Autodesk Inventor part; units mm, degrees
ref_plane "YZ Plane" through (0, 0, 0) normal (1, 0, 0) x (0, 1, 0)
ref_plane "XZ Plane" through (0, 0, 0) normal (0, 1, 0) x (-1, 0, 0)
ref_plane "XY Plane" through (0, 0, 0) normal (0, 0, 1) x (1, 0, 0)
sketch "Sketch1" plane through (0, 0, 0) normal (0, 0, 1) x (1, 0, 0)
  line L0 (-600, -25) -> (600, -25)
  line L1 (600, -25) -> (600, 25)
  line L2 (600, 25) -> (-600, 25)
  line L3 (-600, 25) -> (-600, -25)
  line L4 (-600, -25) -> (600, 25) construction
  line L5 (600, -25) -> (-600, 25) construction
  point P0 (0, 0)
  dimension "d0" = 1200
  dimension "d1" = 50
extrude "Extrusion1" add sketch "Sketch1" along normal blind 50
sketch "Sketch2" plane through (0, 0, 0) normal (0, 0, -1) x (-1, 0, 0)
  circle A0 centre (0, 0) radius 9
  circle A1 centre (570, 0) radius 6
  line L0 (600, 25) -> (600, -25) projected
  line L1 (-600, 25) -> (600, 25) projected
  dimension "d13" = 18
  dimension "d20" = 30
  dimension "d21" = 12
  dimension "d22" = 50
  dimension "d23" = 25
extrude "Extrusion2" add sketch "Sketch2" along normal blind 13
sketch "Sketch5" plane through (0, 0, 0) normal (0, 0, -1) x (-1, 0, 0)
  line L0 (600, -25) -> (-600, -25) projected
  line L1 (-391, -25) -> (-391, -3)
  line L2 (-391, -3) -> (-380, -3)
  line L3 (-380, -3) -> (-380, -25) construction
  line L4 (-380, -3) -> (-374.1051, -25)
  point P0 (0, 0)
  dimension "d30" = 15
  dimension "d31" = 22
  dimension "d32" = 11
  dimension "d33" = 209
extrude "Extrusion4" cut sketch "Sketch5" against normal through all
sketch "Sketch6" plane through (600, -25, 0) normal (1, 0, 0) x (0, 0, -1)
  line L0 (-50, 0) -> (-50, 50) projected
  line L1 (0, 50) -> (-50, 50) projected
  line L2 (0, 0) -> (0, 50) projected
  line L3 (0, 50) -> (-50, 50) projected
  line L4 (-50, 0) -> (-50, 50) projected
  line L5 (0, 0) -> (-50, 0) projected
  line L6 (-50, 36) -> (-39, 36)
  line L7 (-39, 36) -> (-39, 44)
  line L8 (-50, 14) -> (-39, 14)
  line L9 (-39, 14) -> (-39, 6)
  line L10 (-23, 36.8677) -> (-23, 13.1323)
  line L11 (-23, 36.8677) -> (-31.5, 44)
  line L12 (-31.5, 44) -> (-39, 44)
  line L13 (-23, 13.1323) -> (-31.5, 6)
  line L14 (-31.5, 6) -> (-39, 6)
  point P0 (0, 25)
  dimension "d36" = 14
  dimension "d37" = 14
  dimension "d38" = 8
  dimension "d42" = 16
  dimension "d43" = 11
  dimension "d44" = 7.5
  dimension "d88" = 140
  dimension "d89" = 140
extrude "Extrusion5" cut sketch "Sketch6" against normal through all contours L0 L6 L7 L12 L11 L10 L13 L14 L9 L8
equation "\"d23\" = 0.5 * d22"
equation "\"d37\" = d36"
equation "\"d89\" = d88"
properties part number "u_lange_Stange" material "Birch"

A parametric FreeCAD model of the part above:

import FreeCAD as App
import Part
import Sketcher

V = App.Vector
Q = App.Units.Quantity

doc = App.newDocument("Part")
params = doc.addObject("Spreadsheet::Sheet", "Params")
for row, (alias, value) in enumerate([
    ("sketch1_width", "1200 mm"),
    ("sketch1_height", "50 mm"),
    ("pad1_length", "50 mm"),
    ("sketch2_diameter", "18 mm"),
    ("sketch2_diameter2", "12 mm"),
    ("pad2_length", "13 mm"),
    ("sketch3_width", "11 mm"),
    ("sketch3_height", "22 mm"),
    ("sketch4_width", "8 mm"),
    ("sketch4_height", "11 mm"),
    ("sketch4_height2", "7.5 mm"),
], start=1):
    params.set(f"A{row}", alias)
    params.set(f"B{row}", "=" + value)
    params.setAlias(f"B{row}", alias)

body = doc.addObject("PartDesign::Body", "Body")

# Sketch on XY plane
sketch1 = body.newObject("Sketcher::SketchObject", "Sketch")
sketch1.AttachmentSupport = (doc.getObject("XY_Plane"), [""])
sketch1.MapMode = "FlatFace"
sketch1.addGeometry([
    Part.LineSegment(V(-600, 25, 0), V(-600, -25, 0)),
    Part.LineSegment(V(-600, -25, 0), V(600, -25, 0)),
    Part.LineSegment(V(600, -25, 0), V(600, 25, 0)),
    Part.LineSegment(V(600, 25, 0), V(-600, 25, 0)),
], False)
sketch1.addConstraint([
    Sketcher.Constraint("Coincident", 0, 2, 1, 1),
    Sketcher.Constraint("Coincident", 1, 2, 2, 1),
    Sketcher.Constraint("Coincident", 2, 2, 3, 1),
    Sketcher.Constraint("Coincident", 3, 2, 0, 1),
    Sketcher.Constraint("Vertical", 0),
    Sketcher.Constraint("Horizontal", 1),
    Sketcher.Constraint("Vertical", 2),
    Sketcher.Constraint("Horizontal", 3),
    Sketcher.Constraint("Symmetric", 0, 2, 2, 2, -1, 1),
    Sketcher.Constraint("DistanceX", 1, 1, 1, 2, Q("1200 mm")),
    Sketcher.Constraint("DistanceY", 0, 2, 0, 1, Q("50 mm")),
])
sketch1.setExpression("Constraints[9]", "Params.sketch1_width")
sketch1.setExpression("Constraints[10]", "Params.sketch1_height")
pad1 = body.newObject("PartDesign::Pad", "Pad")
pad1.Profile = sketch1
pad1.setExpression("Length", "Params.pad1_length")

# Sketch on XY plane
sketch2 = body.newObject("Sketcher::SketchObject", "Sketch001")
sketch2.AttachmentSupport = (doc.getObject("XY_Plane"), [""])
sketch2.MapMode = "FlatFace"
sketch2.addGeometry([
    Part.Circle(V(0, 0, 0), V(0, 0, 1), 9),
    Part.Circle(V(-570, 0, 0), V(0, 0, 1), 6),
], False)
sketch2.addConstraint([
    Sketcher.Constraint("Coincident", 0, 3, -1, 1),
    Sketcher.Constraint("PointOnObject", 1, 3, -1),
    Sketcher.Constraint("Diameter", 0, Q("18 mm")),
    Sketcher.Constraint("Diameter", 1, Q("12 mm")),
    Sketcher.Constraint("DistanceX", 1, 3, -1, 1, Q("570 mm")),
])
sketch2.setExpression("Constraints[2]", "Params.sketch2_diameter")
sketch2.setExpression("Constraints[3]", "Params.sketch2_diameter2")
pad2 = body.newObject("PartDesign::Pad", "Pad001")
pad2.Profile = sketch2
pad2.setExpression("Length", "Params.pad2_length")
pad2.Reversed = True

# Sketch on XY plane
sketch3 = body.newObject("Sketcher::SketchObject", "Sketch002")
sketch3.AttachmentSupport = (doc.getObject("XY_Plane"), [""])
sketch3.MapMode = "FlatFace"
sketch3.addGeometry([
    Part.LineSegment(V(391, -25, 0), V(374.1051, -25, 0)),
    Part.LineSegment(V(374.1051, -25, 0), V(380, -3, 0)),
    Part.LineSegment(V(380, -3, 0), V(391, -3, 0)),
    Part.LineSegment(V(391, -3, 0), V(391, -25, 0)),
], False)
sketch3.addConstraint([
    Sketcher.Constraint("Coincident", 0, 2, 1, 1),
    Sketcher.Constraint("Coincident", 1, 2, 2, 1),
    Sketcher.Constraint("Coincident", 2, 2, 3, 1),
    Sketcher.Constraint("Coincident", 3, 2, 0, 1),
    Sketcher.Constraint("Horizontal", 0),
    Sketcher.Constraint("Horizontal", 2),
    Sketcher.Constraint("Vertical", 3),
    Sketcher.Constraint("DistanceX", 2, 1, 2, 2, Q("11 mm")),
    Sketcher.Constraint("DistanceY", 3, 2, 3, 1, Q("22 mm")),
    Sketcher.Constraint("Angle", 1, Q("75 deg")),
    Sketcher.Constraint("DistanceY", 0, 2, -1, 1, Q("25 mm")),
    Sketcher.Constraint("DistanceX", -1, 1, 1, 2, Q("380 mm")),
])
sketch3.setExpression("Constraints[7]", "Params.sketch3_width")
sketch3.setExpression("Constraints[8]", "Params.sketch3_height")
pocket1 = body.newObject("PartDesign::Pocket", "Pocket")
pocket1.Profile = sketch3
pocket1.Type = "ThroughAll"
pocket1.Reversed = True

# Sketch on YZ plane
sketch4 = body.newObject("Sketcher::SketchObject", "Sketch003")
sketch4.AttachmentSupport = (doc.getObject("YZ_Plane"), [""])
sketch4.MapMode = "FlatFace"
sketch4.AttachmentOffset = App.Placement(V(0, 0, 600), App.Rotation())
sketch4.addGeometry([
    Part.LineSegment(V(11, 50, 0), V(-11, 50, 0)),  # 0
    Part.LineSegment(V(-11, 50, 0), V(-11, 39, 0)),  # 1
    Part.LineSegment(V(-11, 39, 0), V(-19, 39, 0)),  # 2
    Part.LineSegment(V(-19, 39, 0), V(-19, 31.5, 0)),  # 3
    Part.LineSegment(V(-19, 31.5, 0), V(-11.8677, 23, 0)),  # 4
    Part.LineSegment(V(-11.8677, 23, 0), V(11.8677, 23, 0)),  # 5
    Part.LineSegment(V(11.8677, 23, 0), V(19, 31.5, 0)),  # 6
    Part.LineSegment(V(19, 31.5, 0), V(19, 39, 0)),  # 7
    Part.LineSegment(V(19, 39, 0), V(11, 39, 0)),  # 8
    Part.LineSegment(V(11, 39, 0), V(11, 50, 0)),  # 9
], False)
sketch4.addConstraint([
    Sketcher.Constraint("Coincident", 0, 2, 1, 1),
    Sketcher.Constraint("Coincident", 1, 2, 2, 1),
    Sketcher.Constraint("Coincident", 2, 2, 3, 1),
    Sketcher.Constraint("Coincident", 3, 2, 4, 1),
    Sketcher.Constraint("Coincident", 4, 2, 5, 1),
    Sketcher.Constraint("Coincident", 5, 2, 6, 1),
    Sketcher.Constraint("Coincident", 6, 2, 7, 1),
    Sketcher.Constraint("Coincident", 7, 2, 8, 1),
    Sketcher.Constraint("Coincident", 8, 2, 9, 1),
    Sketcher.Constraint("Coincident", 9, 2, 0, 1),
    Sketcher.Constraint("Horizontal", 0),
    Sketcher.Constraint("Vertical", 1),
    Sketcher.Constraint("Horizontal", 2),
    Sketcher.Constraint("Vertical", 3),
    Sketcher.Constraint("Horizontal", 5),
    Sketcher.Constraint("Vertical", 7),
    Sketcher.Constraint("Horizontal", 8),
    Sketcher.Constraint("Vertical", 9),
    Sketcher.Constraint("Symmetric", 3, 2, 6, 2, -2),
    Sketcher.Constraint("Symmetric", 1, 2, 8, 2, -2),
    Sketcher.Constraint("Equal", 4, 6),
    Sketcher.Constraint("DistanceX", 2, 2, 2, 1, Q("8 mm")),
    Sketcher.Constraint("DistanceY", 1, 2, 1, 1, Q("11 mm")),
    Sketcher.Constraint("DistanceY", 3, 2, 3, 1, Q("7.5 mm")),
    Sketcher.Constraint("DistanceX", 0, 2, -1, 1, Q("11 mm")),
    Sketcher.Constraint("DistanceY", 4, 2, 1, 2, Q("16 mm")),
    Sketcher.Constraint("Angle", 4, Q("-50.0002 deg")),
    Sketcher.Constraint("DistanceY", -1, 1, 0, 2, Q("50 mm")),
])
sketch4.setExpression("Constraints[21]", "Params.sketch4_width")
sketch4.setExpression("Constraints[22]", "Params.sketch4_height")
sketch4.setExpression("Constraints[23]", "Params.sketch4_height2")
pocket2 = body.newObject("PartDesign::Pocket", "Pocket001")
pocket2.Profile = sketch4
pocket2.Type = "ThroughAll"

doc.recompute()
